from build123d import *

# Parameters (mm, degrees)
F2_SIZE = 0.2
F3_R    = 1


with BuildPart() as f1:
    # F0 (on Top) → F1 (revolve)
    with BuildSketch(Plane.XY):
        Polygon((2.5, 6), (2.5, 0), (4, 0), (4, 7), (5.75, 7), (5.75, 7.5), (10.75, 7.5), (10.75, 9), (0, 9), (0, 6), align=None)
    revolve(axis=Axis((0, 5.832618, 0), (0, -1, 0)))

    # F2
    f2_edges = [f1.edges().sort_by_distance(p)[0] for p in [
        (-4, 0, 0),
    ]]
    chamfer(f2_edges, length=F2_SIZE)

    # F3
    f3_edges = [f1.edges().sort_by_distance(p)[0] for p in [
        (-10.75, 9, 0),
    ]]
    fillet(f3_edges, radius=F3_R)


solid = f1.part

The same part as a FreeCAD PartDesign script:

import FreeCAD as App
import Part
import Sketcher


def edges_at(feature, points):
    """Names of the edges that pass closest to the given points."""
    edges = feature.Shape.Edges
    near = lambda p: min(range(len(edges)), key=lambda i: edges[i].distToShape(Part.Vertex(*p))[0])
    return sorted({f"Edge{near(p) + 1}" for p in points})

doc = App.newDocument("Part")
body = doc.addObject("PartDesign::Body", "Body")

# Sketch on XY plane
sketch1 = body.newObject("Sketcher::SketchObject", "Sketch")
sketch1.AttachmentSupport = (doc.getObject("XY_Plane"), [""])
sketch1.MapMode = "FlatFace"
sketch1.addGeometry([
    Part.LineSegment(App.Vector(2.5, 6, 0), App.Vector(2.5, 0, 0)),  # 0
    Part.LineSegment(App.Vector(2.5, 0, 0), App.Vector(4, 0, 0)),  # 1
    Part.LineSegment(App.Vector(4, 0, 0), App.Vector(4, 7, 0)),  # 2
    Part.LineSegment(App.Vector(4, 7, 0), App.Vector(5.8, 7, 0)),  # 3
    Part.LineSegment(App.Vector(5.8, 7, 0), App.Vector(5.8, 7.5, 0)),  # 4
    Part.LineSegment(App.Vector(5.8, 7.5, 0), App.Vector(10.8, 7.5, 0)),  # 5
    Part.LineSegment(App.Vector(10.8, 7.5, 0), App.Vector(10.8, 9, 0)),  # 6
    Part.LineSegment(App.Vector(10.8, 9, 0), App.Vector(0, 9, 0)),  # 7
    Part.LineSegment(App.Vector(0, 9, 0), App.Vector(0, 6, 0)),  # 8
    Part.LineSegment(App.Vector(0, 6, 0), App.Vector(2.5, 6, 0)),  # 9
], False)
sketch1.addConstraint([
    Sketcher.Constraint("Coincident", 0, 2, 1, 1),
    Sketcher.Constraint("Coincident", 1, 2, 2, 1),
    Sketcher.Constraint("Coincident", 2, 2, 3, 1),
    Sketcher.Constraint("Coincident", 3, 2, 4, 1),
    Sketcher.Constraint("Coincident", 4, 2, 5, 1),
    Sketcher.Constraint("Coincident", 5, 2, 6, 1),
    Sketcher.Constraint("Coincident", 6, 2, 7, 1),
    Sketcher.Constraint("Coincident", 7, 2, 8, 1),
    Sketcher.Constraint("Coincident", 8, 2, 9, 1),
    Sketcher.Constraint("Coincident", 9, 2, 0, 1),
    Sketcher.Constraint("Vertical", 0),
    Sketcher.Constraint("Horizontal", 1),
    Sketcher.Constraint("Vertical", 2),
    Sketcher.Constraint("Horizontal", 3),
    Sketcher.Constraint("Vertical", 4),
    Sketcher.Constraint("Horizontal", 5),
    Sketcher.Constraint("Vertical", 6),
    Sketcher.Constraint("Horizontal", 7),
    Sketcher.Constraint("Vertical", 8),
    Sketcher.Constraint("Horizontal", 9),
    Sketcher.Constraint("PointOnObject", 0, 2, -1),
    Sketcher.Constraint("PointOnObject", 7, 2, -2),
    Sketcher.Constraint("Equal", 1, 6),
    Sketcher.Constraint("DistanceX", 5, 1, 5, 2, 5.0),
    Sketcher.Constraint("DistanceY", 0, 2, 0, 1, 6.0),
    Sketcher.Constraint("DistanceY", 2, 1, 2, 2, 7.0),
    Sketcher.Constraint("DistanceY", 8, 2, 8, 1, 3.0),
    Sketcher.Constraint("DistanceX", 1, 1, 1, 2, 1.5),
    Sketcher.Constraint("DistanceX", 9, 1, 9, 2, 2.5),
    Sketcher.Constraint("DistanceX", 3, 1, 3, 2, 1.75),
])
revolution = body.newObject("PartDesign::Revolution", "Revolution")
revolution.Profile = sketch1
revolution.ReferenceAxis = (sketch1, ["V_Axis"])
revolution.Angle = 360
doc.recompute()

chamfer = body.newObject("PartDesign::Chamfer", "Chamfer")
chamfer.Base = (revolution, edges_at(revolution, [(-4, 0, 0)]))
chamfer.Size = 0.2
doc.recompute()

fillet = body.newObject("PartDesign::Fillet", "Fillet")
fillet.Base = (chamfer, edges_at(chamfer, [(-10.75, 9, 0)]))
fillet.Radius = 1

doc.recompute()
